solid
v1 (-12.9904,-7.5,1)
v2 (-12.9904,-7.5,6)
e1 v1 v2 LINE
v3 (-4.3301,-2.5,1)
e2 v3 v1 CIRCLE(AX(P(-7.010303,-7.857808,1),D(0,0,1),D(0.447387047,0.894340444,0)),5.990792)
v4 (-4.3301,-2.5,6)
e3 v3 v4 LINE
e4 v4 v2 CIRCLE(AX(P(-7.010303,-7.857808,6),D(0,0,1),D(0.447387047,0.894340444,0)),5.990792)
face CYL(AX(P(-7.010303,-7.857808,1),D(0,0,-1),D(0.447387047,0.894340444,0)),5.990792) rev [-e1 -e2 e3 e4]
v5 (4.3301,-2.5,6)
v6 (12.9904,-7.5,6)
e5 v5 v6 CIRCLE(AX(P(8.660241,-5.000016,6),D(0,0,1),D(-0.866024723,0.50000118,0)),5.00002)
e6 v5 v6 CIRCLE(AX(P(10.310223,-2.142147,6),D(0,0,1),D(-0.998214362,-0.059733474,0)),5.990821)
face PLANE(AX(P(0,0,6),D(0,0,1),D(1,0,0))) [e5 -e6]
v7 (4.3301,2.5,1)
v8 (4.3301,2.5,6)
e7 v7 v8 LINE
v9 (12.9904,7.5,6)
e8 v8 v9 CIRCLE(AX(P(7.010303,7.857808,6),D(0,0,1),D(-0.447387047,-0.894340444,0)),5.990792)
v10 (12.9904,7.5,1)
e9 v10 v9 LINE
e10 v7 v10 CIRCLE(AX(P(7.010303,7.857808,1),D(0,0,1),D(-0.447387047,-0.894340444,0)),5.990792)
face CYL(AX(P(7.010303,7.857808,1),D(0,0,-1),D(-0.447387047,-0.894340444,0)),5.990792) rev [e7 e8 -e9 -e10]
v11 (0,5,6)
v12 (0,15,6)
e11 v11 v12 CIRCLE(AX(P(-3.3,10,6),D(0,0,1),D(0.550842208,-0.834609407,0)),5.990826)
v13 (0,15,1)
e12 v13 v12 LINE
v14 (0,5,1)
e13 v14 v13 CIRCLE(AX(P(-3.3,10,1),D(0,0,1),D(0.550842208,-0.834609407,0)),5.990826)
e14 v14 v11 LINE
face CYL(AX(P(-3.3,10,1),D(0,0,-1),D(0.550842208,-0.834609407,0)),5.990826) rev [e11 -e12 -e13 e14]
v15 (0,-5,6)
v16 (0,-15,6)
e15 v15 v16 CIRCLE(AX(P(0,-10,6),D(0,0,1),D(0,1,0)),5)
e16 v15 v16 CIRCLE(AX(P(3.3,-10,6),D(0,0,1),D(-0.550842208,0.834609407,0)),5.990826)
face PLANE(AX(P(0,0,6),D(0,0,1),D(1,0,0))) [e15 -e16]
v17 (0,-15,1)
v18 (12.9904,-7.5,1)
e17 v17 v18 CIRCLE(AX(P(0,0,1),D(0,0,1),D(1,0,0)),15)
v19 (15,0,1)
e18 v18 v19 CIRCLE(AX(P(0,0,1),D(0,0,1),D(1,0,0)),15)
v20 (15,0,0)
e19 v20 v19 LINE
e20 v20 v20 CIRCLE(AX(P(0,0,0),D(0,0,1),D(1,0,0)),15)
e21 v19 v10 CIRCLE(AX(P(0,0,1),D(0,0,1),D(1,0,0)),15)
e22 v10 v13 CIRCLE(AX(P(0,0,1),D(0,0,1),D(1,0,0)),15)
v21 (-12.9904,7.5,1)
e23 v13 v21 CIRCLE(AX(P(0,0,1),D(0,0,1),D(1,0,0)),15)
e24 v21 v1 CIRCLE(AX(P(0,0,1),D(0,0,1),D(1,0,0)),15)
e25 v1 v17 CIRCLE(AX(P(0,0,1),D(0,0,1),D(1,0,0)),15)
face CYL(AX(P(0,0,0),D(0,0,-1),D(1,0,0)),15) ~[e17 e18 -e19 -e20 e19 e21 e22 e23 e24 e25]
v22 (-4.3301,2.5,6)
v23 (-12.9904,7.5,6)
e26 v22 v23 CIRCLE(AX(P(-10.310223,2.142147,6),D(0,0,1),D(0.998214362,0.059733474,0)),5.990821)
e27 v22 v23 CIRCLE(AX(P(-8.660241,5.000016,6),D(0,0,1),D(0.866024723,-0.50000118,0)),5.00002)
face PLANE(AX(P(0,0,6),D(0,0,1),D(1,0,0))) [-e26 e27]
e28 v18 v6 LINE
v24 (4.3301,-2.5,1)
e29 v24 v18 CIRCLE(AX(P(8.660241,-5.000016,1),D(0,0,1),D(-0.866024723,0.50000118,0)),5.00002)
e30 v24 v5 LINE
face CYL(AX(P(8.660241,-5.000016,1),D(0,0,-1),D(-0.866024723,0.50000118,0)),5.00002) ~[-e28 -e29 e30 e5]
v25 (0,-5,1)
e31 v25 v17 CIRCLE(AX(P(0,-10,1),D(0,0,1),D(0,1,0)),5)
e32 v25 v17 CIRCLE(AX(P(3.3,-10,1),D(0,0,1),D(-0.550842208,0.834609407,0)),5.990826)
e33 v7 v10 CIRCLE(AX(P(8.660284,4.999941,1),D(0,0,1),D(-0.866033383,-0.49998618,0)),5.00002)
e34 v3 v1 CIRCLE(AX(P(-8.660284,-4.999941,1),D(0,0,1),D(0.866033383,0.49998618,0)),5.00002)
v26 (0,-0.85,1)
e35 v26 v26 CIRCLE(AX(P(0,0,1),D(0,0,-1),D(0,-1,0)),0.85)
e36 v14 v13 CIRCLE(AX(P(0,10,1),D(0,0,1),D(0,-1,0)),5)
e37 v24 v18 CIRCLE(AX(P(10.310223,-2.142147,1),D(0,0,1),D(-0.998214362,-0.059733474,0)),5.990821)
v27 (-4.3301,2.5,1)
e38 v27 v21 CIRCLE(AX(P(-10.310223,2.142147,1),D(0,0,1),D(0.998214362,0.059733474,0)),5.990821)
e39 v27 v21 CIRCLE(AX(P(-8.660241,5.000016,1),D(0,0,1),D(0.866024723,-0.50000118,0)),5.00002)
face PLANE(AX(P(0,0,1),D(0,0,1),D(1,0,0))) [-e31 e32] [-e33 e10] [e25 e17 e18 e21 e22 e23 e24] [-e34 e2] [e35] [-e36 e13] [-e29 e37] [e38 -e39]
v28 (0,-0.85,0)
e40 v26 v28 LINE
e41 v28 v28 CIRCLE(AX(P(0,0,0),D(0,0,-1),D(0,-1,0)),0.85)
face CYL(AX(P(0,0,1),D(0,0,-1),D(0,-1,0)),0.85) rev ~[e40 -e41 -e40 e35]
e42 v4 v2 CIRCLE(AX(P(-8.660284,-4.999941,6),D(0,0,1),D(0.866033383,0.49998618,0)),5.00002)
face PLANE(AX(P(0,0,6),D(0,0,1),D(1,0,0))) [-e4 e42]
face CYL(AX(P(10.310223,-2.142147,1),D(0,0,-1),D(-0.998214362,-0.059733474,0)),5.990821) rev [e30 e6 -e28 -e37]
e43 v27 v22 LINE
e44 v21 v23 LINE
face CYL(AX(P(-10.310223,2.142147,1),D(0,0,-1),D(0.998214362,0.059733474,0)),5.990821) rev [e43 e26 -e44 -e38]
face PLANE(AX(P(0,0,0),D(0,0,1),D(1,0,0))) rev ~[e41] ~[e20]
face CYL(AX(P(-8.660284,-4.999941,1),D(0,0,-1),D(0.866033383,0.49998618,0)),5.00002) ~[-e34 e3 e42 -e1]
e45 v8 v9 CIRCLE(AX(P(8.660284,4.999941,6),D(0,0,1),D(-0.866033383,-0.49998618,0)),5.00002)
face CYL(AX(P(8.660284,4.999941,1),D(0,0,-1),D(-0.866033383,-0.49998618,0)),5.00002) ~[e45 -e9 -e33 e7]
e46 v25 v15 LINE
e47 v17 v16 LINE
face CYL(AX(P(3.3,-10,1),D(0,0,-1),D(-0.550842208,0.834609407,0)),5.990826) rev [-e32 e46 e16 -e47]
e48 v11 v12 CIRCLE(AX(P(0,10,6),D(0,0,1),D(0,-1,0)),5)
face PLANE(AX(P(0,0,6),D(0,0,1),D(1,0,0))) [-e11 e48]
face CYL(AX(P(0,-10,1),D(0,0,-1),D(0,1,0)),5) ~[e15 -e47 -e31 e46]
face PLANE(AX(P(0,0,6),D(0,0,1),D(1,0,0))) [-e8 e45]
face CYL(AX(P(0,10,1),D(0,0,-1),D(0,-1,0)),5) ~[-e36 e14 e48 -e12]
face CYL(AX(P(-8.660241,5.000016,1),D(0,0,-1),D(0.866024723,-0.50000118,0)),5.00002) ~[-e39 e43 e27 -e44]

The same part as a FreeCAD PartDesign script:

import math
import FreeCAD as App
import Part
import Sketcher
Q = App.Units.Quantity

doc = App.newDocument("Part")
body = doc.addObject("PartDesign::Body", "Body")

# Sketch on XY plane
sketch1 = body.newObject("Sketcher::SketchObject", "Sketch")
sketch1.AttachmentSupport = (doc.getObject("XY_Plane"), [""])
sketch1.MapMode = "FlatFace"
sketch1.addGeometry(Part.Circle(App.Vector(0, 0, 0), App.Vector(0, 0, 1), 15), False)
sketch1.addConstraint([
    Sketcher.Constraint("Coincident", 0, 3, -1, 1),
    Sketcher.Constraint("Diameter", 0, Q("30 mm")),
])
pad1 = body.newObject("PartDesign::Pad", "Pad")
pad1.Profile = sketch1
pad1.Length = 1

# Sketch on XY plane
sketch2 = body.newObject("Sketcher::SketchObject", "Sketch001")
sketch2.AttachmentSupport = (doc.getObject("XY_Plane"), [""])
sketch2.MapMode = "FlatFace"
sketch2.AttachmentOffset = App.Placement(App.Vector(0, 0, 1), App.Rotation())
sketch2.addGeometry([
    Part.ArcOfCircle(Part.Circle(App.Vector(7.0103, 7.8579, 0), App.Vector(0, 0, 1), 5.990873), math.radians(-116.575744), math.radians(-3.424981)),  # 0
    Part.ArcOfCircle(Part.Circle(App.Vector(8.6603, 5, 0), App.Vector(0, 0, 1), 5.000063), math.radians(-150.000418), math.radians(30.000155)),  # 1
    Part.ArcOfCircle(Part.Circle(App.Vector(10.3103, -2.1421, 0), App.Vector(0, 0, 1), 5.9909), math.radians(-176.575076), math.radians(-63.425111)),  # 2
    Part.ArcOfCircle(Part.Circle(App.Vector(8.6603, -5, 0), App.Vector(0, 0, 1), 5.000063), math.radians(150.000418), math.radians(329.999845)),  # 3
    Part.ArcOfCircle(Part.Circle(App.Vector(-3.3, 10, 0), App.Vector(0, 0, 1), 5.990826), math.radians(-56.575189), math.radians(56.575189)),  # 4
    Part.ArcOfCircle(Part.Circle(App.Vector(0, 10, 0), App.Vector(0, 0, 1), 5), math.radians(-90), math.radians(90)),  # 5
    Part.ArcOfCircle(Part.Circle(App.Vector(3.3, -10, 0), App.Vector(0, 0, 1), 5.990826), math.radians(123.424811), math.radians(236.575189)),  # 6
    Part.ArcOfCircle(Part.Circle(App.Vector(0, -10, 0), App.Vector(0, 0, 1), 5), math.radians(90), math.radians(270)),  # 7
    Part.ArcOfCircle(Part.Circle(App.Vector(-10.3103, 2.1421, 0), App.Vector(0, 0, 1), 5.9909), math.radians(3.424924), math.radians(116.574889)),  # 8
    Part.ArcOfCircle(Part.Circle(App.Vector(-8.6603, 5, 0), App.Vector(0, 0, 1), 5.000063), math.radians(-29.999582), math.radians(149.999845)),  # 9
    Part.ArcOfCircle(Part.Circle(App.Vector(-7.0103, -7.8579, 0), App.Vector(0, 0, 1), 5.990873), math.radians(63.424256), math.radians(176.575019)),  # 10
    Part.ArcOfCircle(Part.Circle(App.Vector(-8.6603, -5, 0), App.Vector(0, 0, 1), 5.000063), math.radians(29.999582), math.radians(210.000155)),  # 11
], False)
sketch2.addConstraint([
    Sketcher.Constraint("Coincident", 0, 1, 1, 1),
    Sketcher.Constraint("Coincident", 1, 2, 0, 2),
    Sketcher.Constraint("Coincident", 2, 1, 3, 1),
    Sketcher.Constraint("Coincident", 3, 2, 2, 2),
    Sketcher.Constraint("Coincident", 4, 1, 5, 1),
    Sketcher.Constraint("Coincident", 5, 2, 4, 2),
    Sketcher.Constraint("Coincident", 6, 1, 7, 1),
    Sketcher.Constraint("Coincident", 7, 2, 6, 2),
    Sketcher.Constraint("Coincident", 8, 1, 9, 1),
    Sketcher.Constraint("Coincident", 9, 2, 8, 2),
    Sketcher.Constraint("Coincident", 10, 1, 11, 1),
    Sketcher.Constraint("Coincident", 11, 2, 10, 2),
    Sketcher.Constraint("Equal", 0, 2),
    Sketcher.Constraint("Equal", 1, 3),
    Sketcher.Constraint("Equal", 2, 4),
    Sketcher.Constraint("Equal", 3, 5),
    Sketcher.Constraint("Equal", 4, 6),
    Sketcher.Constraint("Equal", 5, 7),
    Sketcher.Constraint("Equal", 6, 8),
    Sketcher.Constraint("Equal", 7, 9),
    Sketcher.Constraint("Equal", 8, 10),
    Sketcher.Constraint("Equal", 9, 11),
    Sketcher.Constraint("Symmetric", 4, 3, 6, 3, -1, 1),
    Sketcher.Constraint("Symmetric", 5, 3, 7, 3, -1, 1),
    Sketcher.Constraint("Symmetric", 2, 3, 8, 3, -1, 1),
    Sketcher.Constraint("Symmetric", 3, 3, 9, 3, -1, 1),
    Sketcher.Constraint("Symmetric", 0, 3, 10, 3, -1, 1),
    Sketcher.Constraint("Symmetric", 1, 3, 11, 3, -1, 1),
    Sketcher.Constraint("Symmetric", 1, 3, 9, 3, -2),
    Sketcher.Constraint("PointOnObject", 5, 3, -2),
    Sketcher.Constraint("PointOnObject", 4, 1, -2),
    Sketcher.Constraint("PointOnObject", 5, 2, -2),
    Sketcher.Constraint("Horizontal", 9, 3, 4, 1),
    Sketcher.Constraint("Horizontal", 0, 1, 8, 1),
    Sketcher.Constraint("Horizontal", 1, 2, 9, 2),
    Sketcher.Constraint("Radius", 1, Q("5 mm")),
    Sketcher.Constraint("DistanceY", -1, 1, 4, 3, Q("10 mm")),
    Sketcher.Constraint("DistanceY", 2, 3, 0, 3, Q("10 mm")),
    Sketcher.Constraint("DistanceX", 4, 3, -1, 1, Q("3.3 mm")),
    Sketcher.Constraint("DistanceX", 0, 3, 2, 3, Q("3.3 mm")),
    Sketcher.Constraint("DistanceX", -1, 1, 0, 1, Q("4.33 mm")),
])
pad2 = body.newObject("PartDesign::Pad", "Pad001")
pad2.Profile = sketch2
pad2.Length = 5

# Sketch on XY plane
sketch3 = body.newObject("Sketcher::SketchObject", "Sketch002")
sketch3.AttachmentSupport = (doc.getObject("XY_Plane"), [""])
sketch3.MapMode = "FlatFace"
sketch3.AttachmentOffset = App.Placement(App.Vector(0, 0, 1), App.Rotation())
sketch3.addGeometry(Part.Circle(App.Vector(0, 0, 0), App.Vector(0, 0, 1), 0.85), False)
sketch3.addConstraint([
    Sketcher.Constraint("Coincident", 0, 3, -1, 1),
    Sketcher.Constraint("Diameter", 0, Q("1.7 mm")),
])
doc.recompute()
hole = body.newObject("PartDesign::Hole", "Hole")
hole.Profile = sketch3
hole.ThreadType = "None"
hole.Diameter = 1.7
hole.DepthType = "Dimension"
hole.Depth = 8.8
hole.DrillPoint = "Angled"
hole.DrillPointAngle = 118

doc.recompute()
